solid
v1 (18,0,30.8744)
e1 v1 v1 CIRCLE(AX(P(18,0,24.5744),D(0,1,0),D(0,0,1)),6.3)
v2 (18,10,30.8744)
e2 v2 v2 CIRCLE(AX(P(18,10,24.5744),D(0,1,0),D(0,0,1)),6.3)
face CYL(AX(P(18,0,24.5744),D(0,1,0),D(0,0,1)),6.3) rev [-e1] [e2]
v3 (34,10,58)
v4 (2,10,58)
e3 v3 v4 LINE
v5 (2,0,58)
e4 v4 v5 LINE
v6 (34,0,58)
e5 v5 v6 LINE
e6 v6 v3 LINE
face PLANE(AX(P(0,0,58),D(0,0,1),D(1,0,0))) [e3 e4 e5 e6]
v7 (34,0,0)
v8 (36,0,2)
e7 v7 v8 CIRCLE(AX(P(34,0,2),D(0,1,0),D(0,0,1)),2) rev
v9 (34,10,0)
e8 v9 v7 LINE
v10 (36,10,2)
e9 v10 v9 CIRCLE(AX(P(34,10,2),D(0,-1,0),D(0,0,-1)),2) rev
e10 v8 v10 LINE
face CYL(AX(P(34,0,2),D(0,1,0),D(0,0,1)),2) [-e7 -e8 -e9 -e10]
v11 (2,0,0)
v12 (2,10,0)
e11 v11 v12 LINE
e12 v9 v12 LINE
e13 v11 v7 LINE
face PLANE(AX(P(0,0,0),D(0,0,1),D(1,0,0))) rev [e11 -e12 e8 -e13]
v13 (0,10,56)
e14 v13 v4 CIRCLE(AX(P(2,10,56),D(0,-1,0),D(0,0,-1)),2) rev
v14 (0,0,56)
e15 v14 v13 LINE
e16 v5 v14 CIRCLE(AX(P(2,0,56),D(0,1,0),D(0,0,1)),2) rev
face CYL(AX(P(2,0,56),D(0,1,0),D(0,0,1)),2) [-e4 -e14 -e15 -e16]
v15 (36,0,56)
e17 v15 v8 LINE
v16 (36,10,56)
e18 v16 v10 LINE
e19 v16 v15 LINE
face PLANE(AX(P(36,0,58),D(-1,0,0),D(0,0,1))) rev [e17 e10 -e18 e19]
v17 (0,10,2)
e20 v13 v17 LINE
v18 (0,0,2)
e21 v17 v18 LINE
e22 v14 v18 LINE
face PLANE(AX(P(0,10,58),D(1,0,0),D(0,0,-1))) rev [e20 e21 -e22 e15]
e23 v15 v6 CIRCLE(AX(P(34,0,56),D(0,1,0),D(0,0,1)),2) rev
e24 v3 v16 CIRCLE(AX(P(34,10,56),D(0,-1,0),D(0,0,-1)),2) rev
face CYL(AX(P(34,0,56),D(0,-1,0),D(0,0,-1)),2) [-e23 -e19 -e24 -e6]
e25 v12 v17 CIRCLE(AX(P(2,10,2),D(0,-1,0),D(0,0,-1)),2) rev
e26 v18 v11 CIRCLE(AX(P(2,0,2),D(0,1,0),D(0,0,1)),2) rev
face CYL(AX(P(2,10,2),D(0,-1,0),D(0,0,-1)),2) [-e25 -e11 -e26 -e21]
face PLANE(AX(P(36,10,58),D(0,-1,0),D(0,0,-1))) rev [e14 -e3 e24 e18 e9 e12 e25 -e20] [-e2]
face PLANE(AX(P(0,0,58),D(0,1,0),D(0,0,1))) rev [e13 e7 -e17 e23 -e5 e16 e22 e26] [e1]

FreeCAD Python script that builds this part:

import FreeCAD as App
import Part
import Sketcher


def edges_at(feature, points):
    """Names of the edges that pass closest to the given points."""
    edges = feature.Shape.Edges
    near = lambda p: min(range(len(edges)), key=lambda i: edges[i].distToShape(Part.Vertex(*p))[0])
    return sorted({f"Edge{near(p) + 1}" for p in points})

doc = App.newDocument("Part")
body = doc.addObject("PartDesign::Body", "Body")

sketch1 = body.newObject("Sketcher::SketchObject", "Sketch")
sketch1.AttachmentSupport = (doc.getObject("XY_Plane"), [""])
sketch1.MapMode = "FlatFace"
sketch1.addGeometry(Part.LineSegment(App.Vector(0, 10, 0), App.Vector(0, 0, 0)), False)
sketch1.addGeometry(Part.LineSegment(App.Vector(0, 0, 0), App.Vector(36, 0, 0)), False)
sketch1.addGeometry(Part.LineSegment(App.Vector(36, 0, 0), App.Vector(36, 10, 0)), False)
sketch1.addGeometry(Part.LineSegment(App.Vector(36, 10, 0), App.Vector(0, 10, 0)), False)
sketch1.addConstraint(Sketcher.Constraint("Coincident", 0, 2, 1, 1))
sketch1.addConstraint(Sketcher.Constraint("Coincident", 1, 2, 2, 1))
sketch1.addConstraint(Sketcher.Constraint("Coincident", 2, 2, 3, 1))
sketch1.addConstraint(Sketcher.Constraint("Coincident", 3, 2, 0, 1))
sketch1.addConstraint(Sketcher.Constraint("Vertical", 0))
sketch1.addConstraint(Sketcher.Constraint("Horizontal", 1))
sketch1.addConstraint(Sketcher.Constraint("Vertical", 2))
sketch1.addConstraint(Sketcher.Constraint("Horizontal", 3))
sketch1.addConstraint(Sketcher.Constraint("Coincident", 0, 2, -1, 1))
sketch1.addConstraint(Sketcher.Constraint("DistanceX", 1, 1, 1, 2, 36.0))
sketch1.addConstraint(Sketcher.Constraint("DistanceY", 0, 2, 0, 1, 10.0))
pad1 = body.newObject("PartDesign::Pad", "Pad")
pad1.Profile = sketch1
pad1.Length = 58
doc.recompute()

fillet = body.newObject("PartDesign::Fillet", "Fillet")
fillet.Base = (pad1, edges_at(pad1, [
    (36, 5, 58),
    (0, 5, 58),
    (36, 5, 0),
    (0, 5, 0),
]))
fillet.Radius = 2

sketch2 = body.newObject("Sketcher::SketchObject", "Sketch001")
sketch2.AttachmentSupport = (doc.getObject("XZ_Plane"), [""])
sketch2.MapMode = "FlatFace"
sketch2.AttachmentOffset = App.Placement(App.Vector(0, 0, -10), App.Rotation())
sketch2.addGeometry(Part.Circle(App.Vector(18, 25, 0), App.Vector(0, 0, 1), 6), False)
sketch2.addConstraint(Sketcher.Constraint("Diameter", 0, 12.6))
sketch2.addConstraint(Sketcher.Constraint("DistanceX", -1, 1, 0, 3, 18.0))
sketch2.addConstraint(Sketcher.Constraint("DistanceY", -1, 1, 0, 3, 24.5744))
pocket1 = body.newObject("PartDesign::Pocket", "Pocket")
pocket1.Profile = sketch2
pocket1.Type = "ThroughAll"
pocket1.Reversed = True

doc.recompute()
